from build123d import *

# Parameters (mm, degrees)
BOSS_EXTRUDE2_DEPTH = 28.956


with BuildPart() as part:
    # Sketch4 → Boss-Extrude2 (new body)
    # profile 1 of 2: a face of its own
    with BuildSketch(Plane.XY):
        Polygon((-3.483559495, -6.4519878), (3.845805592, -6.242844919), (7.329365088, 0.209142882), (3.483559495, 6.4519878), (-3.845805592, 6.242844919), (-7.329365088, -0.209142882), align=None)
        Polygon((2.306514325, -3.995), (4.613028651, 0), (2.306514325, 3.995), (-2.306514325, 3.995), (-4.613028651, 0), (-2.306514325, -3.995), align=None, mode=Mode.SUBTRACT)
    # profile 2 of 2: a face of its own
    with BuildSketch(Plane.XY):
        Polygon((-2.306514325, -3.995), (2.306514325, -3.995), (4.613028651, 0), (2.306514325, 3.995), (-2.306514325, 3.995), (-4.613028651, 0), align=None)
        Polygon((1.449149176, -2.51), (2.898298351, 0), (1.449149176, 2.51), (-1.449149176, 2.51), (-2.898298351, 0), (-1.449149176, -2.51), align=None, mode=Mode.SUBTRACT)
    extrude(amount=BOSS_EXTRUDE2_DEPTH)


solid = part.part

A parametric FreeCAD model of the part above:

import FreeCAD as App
import Part
import Sketcher
Q = App.Units.Quantity

doc = App.newDocument("Part")
body = doc.addObject("PartDesign::Body", "Body")

sketch1 = body.newObject("Sketcher::SketchObject", "Sketch")
sketch1.AttachmentSupport = (doc.getObject("XY_Plane"), [""])
sketch1.MapMode = "FlatFace"
sketch1.addGeometry([
    Part.LineSegment(App.Vector(-3.483559, -6.451988, 0), App.Vector(3.845806, -6.242845, 0)),
    Part.LineSegment(App.Vector(3.845806, -6.242845, 0), App.Vector(7.329365, 0.209143, 0)),
    Part.LineSegment(App.Vector(7.329365, 0.209143, 0), App.Vector(3.483559, 6.451988, 0)),
    Part.LineSegment(App.Vector(3.483559, 6.451988, 0), App.Vector(-3.845806, 6.242845, 0)),
    Part.LineSegment(App.Vector(-3.845806, 6.242845, 0), App.Vector(-7.329365, -0.209143, 0)),
    Part.LineSegment(App.Vector(-7.329365, -0.209143, 0), App.Vector(-3.483559, -6.451988, 0)),
    Part.LineSegment(App.Vector(2.898298, 0, 0), App.Vector(1.449149, -2.51, 0)),
    Part.LineSegment(App.Vector(1.449149, -2.51, 0), App.Vector(-1.449149, -2.51, 0)),
    Part.LineSegment(App.Vector(-1.449149, -2.51, 0), App.Vector(-2.898298, 0, 0)),
    Part.LineSegment(App.Vector(-2.898298, 0, 0), App.Vector(-1.449149, 2.51, 0)),
    Part.LineSegment(App.Vector(-1.449149, 2.51, 0), App.Vector(1.449149, 2.51, 0)),
    Part.LineSegment(App.Vector(1.449149, 2.51, 0), App.Vector(2.898298, 0, 0)),
], False)
sketch1.addConstraint([
    Sketcher.Constraint("Coincident", 0, 2, 1, 1),
    Sketcher.Constraint("Coincident", 1, 2, 2, 1),
    Sketcher.Constraint("Coincident", 2, 2, 3, 1),
    Sketcher.Constraint("Coincident", 3, 2, 4, 1),
    Sketcher.Constraint("Coincident", 4, 2, 5, 1),
    Sketcher.Constraint("Coincident", 5, 2, 0, 1),
    Sketcher.Constraint("Coincident", 6, 2, 7, 1),
    Sketcher.Constraint("Coincident", 7, 2, 8, 1),
    Sketcher.Constraint("Coincident", 8, 2, 9, 1),
    Sketcher.Constraint("Coincident", 9, 2, 10, 1),
    Sketcher.Constraint("Coincident", 10, 2, 11, 1),
    Sketcher.Constraint("Coincident", 11, 2, 6, 1),
    Sketcher.Constraint("Horizontal", 7),
    Sketcher.Constraint("Horizontal", 10),
    Sketcher.Constraint("Symmetric", 0, 2, 3, 2, -1, 1),
    Sketcher.Constraint("Symmetric", 1, 2, 4, 2, -1, 1),
    Sketcher.Constraint("Symmetric", 2, 2, 5, 2, -1, 1),
    Sketcher.Constraint("Symmetric", 6, 2, 9, 2, -1, 1),
    Sketcher.Constraint("Symmetric", 8, 2, 11, 2, -1, 1),
    Sketcher.Constraint("PointOnObject", 8, 2, -1),
    Sketcher.Constraint("Parallel", 8, 11),
    Sketcher.Constraint("Vertical", 7, 2, 9, 2),
    Sketcher.Constraint("Equal", 0, 1),
    Sketcher.Constraint("Equal", 1, 2),
    Sketcher.Constraint("Angle", 6, Q("-120 deg")),
    Sketcher.Constraint("DistanceX", 7, 2, 7, 1, Q("2.898298 mm")),
    Sketcher.Constraint("DistanceY", 7, 2, 3, 2, Q("0.3446002 in")),
    Sketcher.Constraint("Distance", 6, Q("2.898298 mm")),
    Sketcher.Constraint("Distance", 0, Q("7.332348 mm")),
    Sketcher.Constraint("DistanceX", -1, 1, 2, 2, Q("3.483559 mm")),
    Sketcher.Constraint("DistanceX", 0, 2, 1, 2, Q("3.483559 mm")),
])
pad1 = body.newObject("PartDesign::Pad", "Pad")
pad1.Profile = sketch1
pad1.Length = Q("1.14 in")

doc.recompute()
